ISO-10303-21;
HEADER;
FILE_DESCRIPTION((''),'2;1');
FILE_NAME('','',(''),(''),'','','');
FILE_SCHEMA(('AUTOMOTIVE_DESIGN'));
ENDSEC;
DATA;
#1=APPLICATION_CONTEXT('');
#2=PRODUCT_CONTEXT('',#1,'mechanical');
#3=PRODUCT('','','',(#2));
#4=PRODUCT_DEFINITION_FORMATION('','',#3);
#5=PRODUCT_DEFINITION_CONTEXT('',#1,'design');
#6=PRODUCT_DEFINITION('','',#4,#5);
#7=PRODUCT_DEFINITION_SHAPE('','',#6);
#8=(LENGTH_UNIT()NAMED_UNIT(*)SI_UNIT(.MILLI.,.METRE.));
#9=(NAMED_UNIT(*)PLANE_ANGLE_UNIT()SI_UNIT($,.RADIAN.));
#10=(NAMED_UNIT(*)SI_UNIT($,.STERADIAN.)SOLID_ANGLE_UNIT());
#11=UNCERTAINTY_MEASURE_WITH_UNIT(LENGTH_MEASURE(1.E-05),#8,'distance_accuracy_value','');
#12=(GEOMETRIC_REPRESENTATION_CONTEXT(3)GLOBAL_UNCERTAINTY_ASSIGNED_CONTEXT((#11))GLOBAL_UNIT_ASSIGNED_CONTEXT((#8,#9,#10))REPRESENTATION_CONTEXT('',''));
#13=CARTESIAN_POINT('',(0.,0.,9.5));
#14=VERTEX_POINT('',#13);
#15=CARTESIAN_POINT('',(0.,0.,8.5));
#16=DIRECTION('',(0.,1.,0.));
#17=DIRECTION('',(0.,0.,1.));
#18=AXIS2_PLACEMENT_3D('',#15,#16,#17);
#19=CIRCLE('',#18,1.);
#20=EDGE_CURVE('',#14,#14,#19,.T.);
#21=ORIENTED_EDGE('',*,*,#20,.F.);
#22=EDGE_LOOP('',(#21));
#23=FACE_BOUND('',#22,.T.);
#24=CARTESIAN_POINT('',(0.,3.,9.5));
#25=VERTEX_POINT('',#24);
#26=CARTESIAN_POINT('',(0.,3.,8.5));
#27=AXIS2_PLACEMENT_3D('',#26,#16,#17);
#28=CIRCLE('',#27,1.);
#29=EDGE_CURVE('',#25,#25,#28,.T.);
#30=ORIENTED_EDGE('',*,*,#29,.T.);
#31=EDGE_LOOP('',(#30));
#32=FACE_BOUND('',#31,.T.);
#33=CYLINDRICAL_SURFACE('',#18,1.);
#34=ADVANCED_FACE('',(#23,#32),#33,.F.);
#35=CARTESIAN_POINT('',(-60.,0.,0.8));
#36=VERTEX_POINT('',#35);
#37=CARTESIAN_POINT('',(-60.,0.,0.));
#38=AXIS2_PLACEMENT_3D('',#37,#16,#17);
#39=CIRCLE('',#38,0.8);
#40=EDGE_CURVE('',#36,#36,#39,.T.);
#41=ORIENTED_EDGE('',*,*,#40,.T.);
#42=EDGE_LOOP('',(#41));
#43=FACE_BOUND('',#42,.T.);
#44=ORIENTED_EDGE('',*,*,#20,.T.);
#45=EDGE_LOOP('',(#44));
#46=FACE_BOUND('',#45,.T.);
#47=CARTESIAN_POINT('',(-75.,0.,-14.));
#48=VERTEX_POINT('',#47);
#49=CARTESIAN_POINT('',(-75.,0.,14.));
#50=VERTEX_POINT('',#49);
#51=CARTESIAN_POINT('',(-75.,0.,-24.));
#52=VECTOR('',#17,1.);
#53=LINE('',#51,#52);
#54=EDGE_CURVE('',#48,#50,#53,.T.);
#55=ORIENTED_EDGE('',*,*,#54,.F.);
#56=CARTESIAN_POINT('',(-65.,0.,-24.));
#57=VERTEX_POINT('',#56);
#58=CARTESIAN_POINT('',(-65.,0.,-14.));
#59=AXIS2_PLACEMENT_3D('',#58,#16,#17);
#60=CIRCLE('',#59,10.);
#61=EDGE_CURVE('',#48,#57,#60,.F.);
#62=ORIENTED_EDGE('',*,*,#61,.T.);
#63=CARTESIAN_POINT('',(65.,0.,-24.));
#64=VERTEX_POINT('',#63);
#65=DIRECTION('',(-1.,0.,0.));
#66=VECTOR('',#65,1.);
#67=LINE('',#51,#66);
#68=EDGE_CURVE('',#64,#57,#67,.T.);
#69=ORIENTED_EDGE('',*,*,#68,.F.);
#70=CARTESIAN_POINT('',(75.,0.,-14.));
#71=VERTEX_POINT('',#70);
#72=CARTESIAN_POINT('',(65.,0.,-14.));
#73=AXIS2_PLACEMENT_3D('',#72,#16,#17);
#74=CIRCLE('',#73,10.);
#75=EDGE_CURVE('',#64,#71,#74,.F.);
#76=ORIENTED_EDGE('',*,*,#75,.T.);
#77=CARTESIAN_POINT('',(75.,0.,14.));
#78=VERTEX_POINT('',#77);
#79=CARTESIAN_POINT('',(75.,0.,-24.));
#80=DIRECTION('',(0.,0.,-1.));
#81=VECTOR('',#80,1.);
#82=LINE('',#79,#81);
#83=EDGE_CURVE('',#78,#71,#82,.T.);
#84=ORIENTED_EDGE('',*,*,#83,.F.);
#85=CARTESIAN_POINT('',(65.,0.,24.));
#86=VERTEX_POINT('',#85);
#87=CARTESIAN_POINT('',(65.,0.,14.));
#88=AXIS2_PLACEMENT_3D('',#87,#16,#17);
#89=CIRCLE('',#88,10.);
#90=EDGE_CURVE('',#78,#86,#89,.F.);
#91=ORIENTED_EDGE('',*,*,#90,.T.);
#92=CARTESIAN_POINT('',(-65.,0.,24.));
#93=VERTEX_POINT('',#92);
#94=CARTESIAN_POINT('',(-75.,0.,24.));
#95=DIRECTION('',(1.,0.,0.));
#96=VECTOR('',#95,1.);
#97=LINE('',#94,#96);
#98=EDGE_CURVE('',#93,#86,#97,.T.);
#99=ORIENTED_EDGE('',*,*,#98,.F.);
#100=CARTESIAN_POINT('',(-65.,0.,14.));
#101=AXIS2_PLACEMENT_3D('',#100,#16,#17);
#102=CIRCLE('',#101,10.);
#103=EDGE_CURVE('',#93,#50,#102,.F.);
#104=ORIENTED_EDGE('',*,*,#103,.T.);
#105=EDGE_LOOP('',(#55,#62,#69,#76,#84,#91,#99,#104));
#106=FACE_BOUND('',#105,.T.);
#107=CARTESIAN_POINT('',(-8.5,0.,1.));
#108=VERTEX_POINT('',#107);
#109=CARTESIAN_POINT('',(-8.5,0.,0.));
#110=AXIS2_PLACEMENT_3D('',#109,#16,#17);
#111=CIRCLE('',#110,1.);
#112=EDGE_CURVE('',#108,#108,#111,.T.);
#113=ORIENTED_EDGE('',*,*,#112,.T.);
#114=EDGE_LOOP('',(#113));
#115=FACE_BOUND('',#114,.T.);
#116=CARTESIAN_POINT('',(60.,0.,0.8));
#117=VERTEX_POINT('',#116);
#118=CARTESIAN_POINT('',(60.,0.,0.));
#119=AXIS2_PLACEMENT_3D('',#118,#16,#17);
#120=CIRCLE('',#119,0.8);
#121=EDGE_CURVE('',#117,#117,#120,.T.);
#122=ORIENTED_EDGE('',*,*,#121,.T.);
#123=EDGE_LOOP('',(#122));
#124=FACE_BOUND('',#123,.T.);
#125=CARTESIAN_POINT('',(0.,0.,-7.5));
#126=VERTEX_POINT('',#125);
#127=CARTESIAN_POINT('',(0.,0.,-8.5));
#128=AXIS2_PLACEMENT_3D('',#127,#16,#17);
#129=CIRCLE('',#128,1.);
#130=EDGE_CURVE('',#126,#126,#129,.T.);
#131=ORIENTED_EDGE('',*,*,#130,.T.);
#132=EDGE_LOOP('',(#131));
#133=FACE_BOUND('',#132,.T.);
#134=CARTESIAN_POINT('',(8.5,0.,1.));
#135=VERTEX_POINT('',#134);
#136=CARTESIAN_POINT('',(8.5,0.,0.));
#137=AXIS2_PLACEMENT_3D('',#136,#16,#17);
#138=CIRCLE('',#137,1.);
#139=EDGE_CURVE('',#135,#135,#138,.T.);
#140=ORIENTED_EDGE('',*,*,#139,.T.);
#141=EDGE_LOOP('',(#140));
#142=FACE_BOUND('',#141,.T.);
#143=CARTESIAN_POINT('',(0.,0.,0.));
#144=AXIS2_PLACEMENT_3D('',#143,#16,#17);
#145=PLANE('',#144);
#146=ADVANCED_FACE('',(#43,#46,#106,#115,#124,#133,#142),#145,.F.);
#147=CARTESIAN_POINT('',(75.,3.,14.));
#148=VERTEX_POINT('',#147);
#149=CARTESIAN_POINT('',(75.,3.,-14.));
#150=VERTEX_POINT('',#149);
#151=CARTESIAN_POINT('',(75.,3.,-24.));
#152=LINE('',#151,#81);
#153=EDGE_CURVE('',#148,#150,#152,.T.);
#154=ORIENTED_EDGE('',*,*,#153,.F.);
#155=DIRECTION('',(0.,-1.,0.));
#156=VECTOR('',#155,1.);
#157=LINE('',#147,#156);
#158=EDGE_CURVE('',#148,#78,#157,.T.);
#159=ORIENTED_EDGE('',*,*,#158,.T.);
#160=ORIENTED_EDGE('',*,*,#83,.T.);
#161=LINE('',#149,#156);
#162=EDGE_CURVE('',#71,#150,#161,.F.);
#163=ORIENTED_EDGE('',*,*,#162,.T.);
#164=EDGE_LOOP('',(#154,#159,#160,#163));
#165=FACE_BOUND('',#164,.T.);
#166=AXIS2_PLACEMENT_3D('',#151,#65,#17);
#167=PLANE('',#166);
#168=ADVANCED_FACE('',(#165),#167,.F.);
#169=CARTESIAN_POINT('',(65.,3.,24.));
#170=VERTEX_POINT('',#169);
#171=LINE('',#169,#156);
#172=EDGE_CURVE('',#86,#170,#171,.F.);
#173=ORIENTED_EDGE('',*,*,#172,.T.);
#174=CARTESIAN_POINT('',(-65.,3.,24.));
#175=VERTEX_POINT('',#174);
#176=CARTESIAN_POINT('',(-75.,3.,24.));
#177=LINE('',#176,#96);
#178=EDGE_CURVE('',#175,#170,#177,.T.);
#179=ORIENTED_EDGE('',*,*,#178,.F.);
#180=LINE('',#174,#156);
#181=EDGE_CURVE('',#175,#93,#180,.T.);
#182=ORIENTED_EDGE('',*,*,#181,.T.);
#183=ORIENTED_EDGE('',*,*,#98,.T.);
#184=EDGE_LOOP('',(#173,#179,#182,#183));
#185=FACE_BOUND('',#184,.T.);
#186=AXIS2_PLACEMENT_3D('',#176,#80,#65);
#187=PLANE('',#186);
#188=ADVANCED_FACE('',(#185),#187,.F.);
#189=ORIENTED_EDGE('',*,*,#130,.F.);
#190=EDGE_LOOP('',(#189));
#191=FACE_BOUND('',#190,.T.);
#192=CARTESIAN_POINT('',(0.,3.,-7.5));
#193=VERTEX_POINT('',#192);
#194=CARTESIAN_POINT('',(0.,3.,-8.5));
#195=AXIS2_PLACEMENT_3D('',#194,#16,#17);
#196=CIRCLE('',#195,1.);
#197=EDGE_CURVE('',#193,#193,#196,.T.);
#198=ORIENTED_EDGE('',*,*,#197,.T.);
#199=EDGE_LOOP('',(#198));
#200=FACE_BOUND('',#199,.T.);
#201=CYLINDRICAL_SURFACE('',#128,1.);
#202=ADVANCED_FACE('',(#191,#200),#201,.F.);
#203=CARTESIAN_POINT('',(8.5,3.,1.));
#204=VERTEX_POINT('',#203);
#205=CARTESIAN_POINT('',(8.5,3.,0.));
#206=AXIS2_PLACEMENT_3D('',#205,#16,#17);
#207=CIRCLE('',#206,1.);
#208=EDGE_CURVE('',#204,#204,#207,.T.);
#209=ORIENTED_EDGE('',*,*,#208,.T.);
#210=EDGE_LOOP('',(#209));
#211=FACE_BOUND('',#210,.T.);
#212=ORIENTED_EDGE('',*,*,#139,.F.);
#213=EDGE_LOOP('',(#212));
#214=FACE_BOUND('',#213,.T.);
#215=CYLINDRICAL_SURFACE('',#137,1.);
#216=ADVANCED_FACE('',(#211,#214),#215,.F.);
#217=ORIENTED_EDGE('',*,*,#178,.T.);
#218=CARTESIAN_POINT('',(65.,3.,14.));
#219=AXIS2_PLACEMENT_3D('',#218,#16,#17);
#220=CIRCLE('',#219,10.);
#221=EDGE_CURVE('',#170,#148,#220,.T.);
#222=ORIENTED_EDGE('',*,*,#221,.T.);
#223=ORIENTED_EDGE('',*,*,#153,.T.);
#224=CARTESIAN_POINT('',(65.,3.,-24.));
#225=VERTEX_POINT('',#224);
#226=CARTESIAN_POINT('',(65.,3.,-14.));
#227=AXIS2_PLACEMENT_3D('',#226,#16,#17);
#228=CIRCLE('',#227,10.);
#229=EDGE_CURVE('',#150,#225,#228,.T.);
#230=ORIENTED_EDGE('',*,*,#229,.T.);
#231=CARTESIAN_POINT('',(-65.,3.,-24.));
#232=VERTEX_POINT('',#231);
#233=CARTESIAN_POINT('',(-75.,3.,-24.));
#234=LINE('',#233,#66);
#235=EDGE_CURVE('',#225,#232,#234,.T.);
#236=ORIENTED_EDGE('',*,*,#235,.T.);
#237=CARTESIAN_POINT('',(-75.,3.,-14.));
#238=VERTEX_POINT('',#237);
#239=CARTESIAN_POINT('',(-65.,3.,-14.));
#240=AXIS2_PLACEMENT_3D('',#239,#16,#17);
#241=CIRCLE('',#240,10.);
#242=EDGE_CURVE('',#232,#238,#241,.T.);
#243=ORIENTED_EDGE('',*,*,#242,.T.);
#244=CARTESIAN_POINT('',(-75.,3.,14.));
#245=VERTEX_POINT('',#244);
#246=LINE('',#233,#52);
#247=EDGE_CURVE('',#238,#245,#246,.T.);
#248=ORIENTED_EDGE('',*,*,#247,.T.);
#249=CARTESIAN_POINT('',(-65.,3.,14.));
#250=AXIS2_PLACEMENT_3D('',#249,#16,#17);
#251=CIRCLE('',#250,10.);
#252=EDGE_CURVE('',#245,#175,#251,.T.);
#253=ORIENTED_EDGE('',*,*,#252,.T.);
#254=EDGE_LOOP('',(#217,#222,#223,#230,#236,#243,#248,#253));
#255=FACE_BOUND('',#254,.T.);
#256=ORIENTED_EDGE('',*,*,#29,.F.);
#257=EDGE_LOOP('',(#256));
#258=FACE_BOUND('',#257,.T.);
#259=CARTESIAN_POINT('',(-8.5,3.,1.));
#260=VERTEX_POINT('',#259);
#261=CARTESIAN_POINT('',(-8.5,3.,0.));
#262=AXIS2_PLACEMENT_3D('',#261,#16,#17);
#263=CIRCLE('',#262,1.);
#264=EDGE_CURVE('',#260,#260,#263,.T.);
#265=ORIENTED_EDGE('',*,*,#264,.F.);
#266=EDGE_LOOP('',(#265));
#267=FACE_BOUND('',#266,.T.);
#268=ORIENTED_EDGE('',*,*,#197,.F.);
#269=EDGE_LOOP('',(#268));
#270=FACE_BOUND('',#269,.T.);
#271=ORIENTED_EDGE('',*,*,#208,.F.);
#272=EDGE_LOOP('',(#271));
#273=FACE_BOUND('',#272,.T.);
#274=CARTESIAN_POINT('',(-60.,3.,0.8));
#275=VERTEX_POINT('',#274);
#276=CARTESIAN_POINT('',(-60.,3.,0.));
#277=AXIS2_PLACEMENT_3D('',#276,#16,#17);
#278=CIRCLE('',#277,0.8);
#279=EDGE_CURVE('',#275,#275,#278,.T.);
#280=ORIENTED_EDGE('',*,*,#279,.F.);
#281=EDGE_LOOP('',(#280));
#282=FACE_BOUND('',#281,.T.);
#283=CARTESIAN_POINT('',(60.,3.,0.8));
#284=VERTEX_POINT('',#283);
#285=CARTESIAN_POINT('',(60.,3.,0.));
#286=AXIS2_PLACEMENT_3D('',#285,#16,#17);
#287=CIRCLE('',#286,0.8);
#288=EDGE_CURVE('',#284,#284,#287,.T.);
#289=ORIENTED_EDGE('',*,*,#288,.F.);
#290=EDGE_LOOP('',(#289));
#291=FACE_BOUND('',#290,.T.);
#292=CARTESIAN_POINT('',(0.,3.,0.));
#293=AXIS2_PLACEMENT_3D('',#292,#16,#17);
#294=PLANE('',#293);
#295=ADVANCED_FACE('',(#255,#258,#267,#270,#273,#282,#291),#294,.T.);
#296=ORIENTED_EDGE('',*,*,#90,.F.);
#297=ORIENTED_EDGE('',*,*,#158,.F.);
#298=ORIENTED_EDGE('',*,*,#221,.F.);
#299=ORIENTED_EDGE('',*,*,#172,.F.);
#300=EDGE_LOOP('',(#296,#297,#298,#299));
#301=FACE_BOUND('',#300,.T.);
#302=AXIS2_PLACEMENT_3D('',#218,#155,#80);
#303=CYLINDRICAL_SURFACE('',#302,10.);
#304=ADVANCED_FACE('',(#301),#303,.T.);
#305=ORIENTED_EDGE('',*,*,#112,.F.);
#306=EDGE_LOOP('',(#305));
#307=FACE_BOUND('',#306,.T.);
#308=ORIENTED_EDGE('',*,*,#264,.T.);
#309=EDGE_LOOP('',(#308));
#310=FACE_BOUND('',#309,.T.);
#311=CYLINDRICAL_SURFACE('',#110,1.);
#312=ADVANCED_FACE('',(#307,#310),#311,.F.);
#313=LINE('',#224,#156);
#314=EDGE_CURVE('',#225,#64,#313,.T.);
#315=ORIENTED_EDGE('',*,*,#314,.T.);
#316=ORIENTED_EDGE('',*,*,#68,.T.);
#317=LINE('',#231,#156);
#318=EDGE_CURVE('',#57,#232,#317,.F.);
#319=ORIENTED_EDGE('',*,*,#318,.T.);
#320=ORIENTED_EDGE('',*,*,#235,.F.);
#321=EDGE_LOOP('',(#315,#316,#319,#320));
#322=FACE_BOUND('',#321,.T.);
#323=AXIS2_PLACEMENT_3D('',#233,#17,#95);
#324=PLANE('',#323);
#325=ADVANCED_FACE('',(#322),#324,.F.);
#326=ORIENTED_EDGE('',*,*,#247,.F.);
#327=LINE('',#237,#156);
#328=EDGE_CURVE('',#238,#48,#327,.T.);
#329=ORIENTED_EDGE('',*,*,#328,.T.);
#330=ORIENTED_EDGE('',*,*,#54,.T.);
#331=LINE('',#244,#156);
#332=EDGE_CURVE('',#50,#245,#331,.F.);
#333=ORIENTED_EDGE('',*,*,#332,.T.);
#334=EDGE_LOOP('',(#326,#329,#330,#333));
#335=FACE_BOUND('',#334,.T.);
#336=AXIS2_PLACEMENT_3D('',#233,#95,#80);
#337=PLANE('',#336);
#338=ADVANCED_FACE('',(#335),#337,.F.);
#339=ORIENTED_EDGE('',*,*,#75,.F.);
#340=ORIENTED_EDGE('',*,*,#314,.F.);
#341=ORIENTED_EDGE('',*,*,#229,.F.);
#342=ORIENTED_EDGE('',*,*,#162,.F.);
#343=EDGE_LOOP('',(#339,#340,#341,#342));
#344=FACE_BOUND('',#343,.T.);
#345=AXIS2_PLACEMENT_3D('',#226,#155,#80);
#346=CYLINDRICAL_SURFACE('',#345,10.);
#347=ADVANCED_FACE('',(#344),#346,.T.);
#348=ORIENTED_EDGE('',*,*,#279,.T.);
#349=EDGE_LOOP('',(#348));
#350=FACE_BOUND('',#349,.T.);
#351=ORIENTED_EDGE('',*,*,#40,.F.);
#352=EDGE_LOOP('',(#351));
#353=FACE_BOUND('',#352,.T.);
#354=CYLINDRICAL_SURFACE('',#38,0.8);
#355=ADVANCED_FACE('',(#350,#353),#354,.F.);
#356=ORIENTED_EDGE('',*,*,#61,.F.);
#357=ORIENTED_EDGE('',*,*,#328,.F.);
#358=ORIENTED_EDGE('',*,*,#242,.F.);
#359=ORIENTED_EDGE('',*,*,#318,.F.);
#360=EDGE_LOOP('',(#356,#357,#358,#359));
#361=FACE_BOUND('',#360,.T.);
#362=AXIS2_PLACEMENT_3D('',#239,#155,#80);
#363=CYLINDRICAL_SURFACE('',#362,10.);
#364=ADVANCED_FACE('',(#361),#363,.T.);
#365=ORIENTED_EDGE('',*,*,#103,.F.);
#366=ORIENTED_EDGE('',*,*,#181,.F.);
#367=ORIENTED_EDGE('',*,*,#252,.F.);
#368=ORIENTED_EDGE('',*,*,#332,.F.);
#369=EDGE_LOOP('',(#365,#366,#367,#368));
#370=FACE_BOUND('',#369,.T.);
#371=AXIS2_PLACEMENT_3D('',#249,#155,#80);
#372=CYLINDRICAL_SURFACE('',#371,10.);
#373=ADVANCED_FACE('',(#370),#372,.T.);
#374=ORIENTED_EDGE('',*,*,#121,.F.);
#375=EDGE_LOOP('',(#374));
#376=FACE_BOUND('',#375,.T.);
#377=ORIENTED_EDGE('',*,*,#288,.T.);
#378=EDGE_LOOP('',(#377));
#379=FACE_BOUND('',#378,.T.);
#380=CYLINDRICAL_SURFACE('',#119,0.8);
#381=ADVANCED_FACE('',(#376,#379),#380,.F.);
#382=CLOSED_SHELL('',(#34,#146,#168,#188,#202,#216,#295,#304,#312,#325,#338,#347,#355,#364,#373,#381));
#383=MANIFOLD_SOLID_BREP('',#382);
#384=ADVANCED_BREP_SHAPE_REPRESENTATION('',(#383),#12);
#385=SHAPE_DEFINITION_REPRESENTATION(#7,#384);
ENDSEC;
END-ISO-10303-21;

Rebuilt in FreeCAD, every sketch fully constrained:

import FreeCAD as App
import Part
import Sketcher


def edges_at(feature, points):
    """Names of the edges that pass closest to the given points."""
    edges = feature.Shape.Edges
    near = lambda p: min(range(len(edges)), key=lambda i: edges[i].distToShape(Part.Vertex(*p))[0])
    return sorted({f"Edge{near(p) + 1}" for p in points})

doc = App.newDocument("Part")
body = doc.addObject("PartDesign::Body", "Body")

# Sketch on XZ plane
sketch1 = body.newObject("Sketcher::SketchObject", "Sketch")
sketch1.AttachmentSupport = (doc.getObject("XZ_Plane"), [""])
sketch1.MapMode = "FlatFace"
sketch1.addGeometry(Part.LineSegment(App.Vector(-75, -24, 0), App.Vector(-75, 24, 0)), False)
sketch1.addGeometry(Part.LineSegment(App.Vector(-75, 24, 0), App.Vector(75, 24, 0)), False)
sketch1.addGeometry(Part.LineSegment(App.Vector(75, 24, 0), App.Vector(75, -24, 0)), False)
sketch1.addGeometry(Part.LineSegment(App.Vector(75, -24, 0), App.Vector(-75, -24, 0)), False)
sketch1.addConstraint(Sketcher.Constraint("Coincident", 0, 2, 1, 1))
sketch1.addConstraint(Sketcher.Constraint("Coincident", 1, 2, 2, 1))
sketch1.addConstraint(Sketcher.Constraint("Coincident", 2, 2, 3, 1))
sketch1.addConstraint(Sketcher.Constraint("Coincident", 3, 2, 0, 1))
sketch1.addConstraint(Sketcher.Constraint("Vertical", 0))
sketch1.addConstraint(Sketcher.Constraint("Horizontal", 1))
sketch1.addConstraint(Sketcher.Constraint("Vertical", 2))
sketch1.addConstraint(Sketcher.Constraint("Horizontal", 3))
sketch1.addConstraint(Sketcher.Constraint("Symmetric", 0, 2, 2, 2, -1, 1))
sketch1.addConstraint(Sketcher.Constraint("DistanceX", 1, 1, 1, 2, 150.0))
sketch1.addConstraint(Sketcher.Constraint("DistanceY", 0, 1, 0, 2, 48.0))
pad1 = body.newObject("PartDesign::Pad", "Pad")
pad1.Profile = sketch1
pad1.Length = 3
pad1.Reversed = True
doc.recompute()

fillet = body.newObject("PartDesign::Fillet", "Fillet")
fillet.Base = (pad1, edges_at(pad1, [
    (-75, 1.5, -24),
    (75, 1.5, -24),
    (75, 1.5, 24),
    (-75, 1.5, 24),
]))
fillet.Radius = 10

# Sketch on XZ plane
sketch2 = body.newObject("Sketcher::SketchObject", "Sketch001")
sketch2.AttachmentSupport = (doc.getObject("XZ_Plane"), [""])
sketch2.MapMode = "FlatFace"
sketch2.AttachmentOffset = App.Placement(App.Vector(0, 0, -3), App.Rotation())
sketch2.addGeometry(Part.Circle(App.Vector(-60, 0, 0), App.Vector(0, 0, 1), 0.8), False)
sketch2.addGeometry(Part.Circle(App.Vector(60, 0, 0), App.Vector(0, 0, 1), 0.8), False)
sketch2.addConstraint(Sketcher.Constraint("Equal", 0, 1))
sketch2.addConstraint(Sketcher.Constraint("Symmetric", 0, 3, 1, 3, -1, 1))
sketch2.addConstraint(Sketcher.Constraint("PointOnObject", 0, 3, -1))
sketch2.addConstraint(Sketcher.Constraint("Diameter", 0, 1.6))
sketch2.addConstraint(Sketcher.Constraint("DistanceX", 0, 3, -1, 1, 60.0))
pocket1 = body.newObject("PartDesign::Pocket", "Pocket")
pocket1.Profile = sketch2
pocket1.Type = "ThroughAll"
pocket1.Reversed = True

# Sketch on XZ plane
sketch3 = body.newObject("Sketcher::SketchObject", "Sketch002")
sketch3.AttachmentSupport = (doc.getObject("XZ_Plane"), [""])
sketch3.MapMode = "FlatFace"
sketch3.AttachmentOffset = App.Placement(App.Vector(0, 0, -3), App.Rotation())
sketch3.addGeometry(Part.Circle(App.Vector(-8.5, 0, 0), App.Vector(0, 0, 1), 1), False)
sketch3.addGeometry(Part.Circle(App.Vector(8.5, 0, 0), App.Vector(0, 0, 1), 1), False)
sketch3.addGeometry(Part.Circle(App.Vector(0, -8.5, 0), App.Vector(0, 0, 1), 1), False)
sketch3.addGeometry(Part.Circle(App.Vector(0, 8.5, 0), App.Vector(0, 0, 1), 1), False)
sketch3.addConstraint(Sketcher.Constraint("Equal", 0, 1))
sketch3.addConstraint(Sketcher.Constraint("Equal", 1, 2))
sketch3.addConstraint(Sketcher.Constraint("Equal", 2, 3))
sketch3.addConstraint(Sketcher.Constraint("Symmetric", 0, 3, 1, 3, -1, 1))
sketch3.addConstraint(Sketcher.Constraint("Symmetric", 2, 3, 3, 3, -1, 1))
sketch3.addConstraint(Sketcher.Constraint("PointOnObject", 0, 3, -1))
sketch3.addConstraint(Sketcher.Constraint("PointOnObject", 2, 3, -2))
sketch3.addConstraint(Sketcher.Constraint("Diameter", 0, 2.0))
sketch3.addConstraint(Sketcher.Constraint("DistanceX", 0, 3, 1, 3, 17.0))
sketch3.addConstraint(Sketcher.Constraint("DistanceY", 2, 3, 3, 3, 17.0))
pocket2 = body.newObject("PartDesign::Pocket", "Pocket001")
pocket2.Profile = sketch3
pocket2.Type = "ThroughAll"
pocket2.Reversed = True

doc.recompute()
